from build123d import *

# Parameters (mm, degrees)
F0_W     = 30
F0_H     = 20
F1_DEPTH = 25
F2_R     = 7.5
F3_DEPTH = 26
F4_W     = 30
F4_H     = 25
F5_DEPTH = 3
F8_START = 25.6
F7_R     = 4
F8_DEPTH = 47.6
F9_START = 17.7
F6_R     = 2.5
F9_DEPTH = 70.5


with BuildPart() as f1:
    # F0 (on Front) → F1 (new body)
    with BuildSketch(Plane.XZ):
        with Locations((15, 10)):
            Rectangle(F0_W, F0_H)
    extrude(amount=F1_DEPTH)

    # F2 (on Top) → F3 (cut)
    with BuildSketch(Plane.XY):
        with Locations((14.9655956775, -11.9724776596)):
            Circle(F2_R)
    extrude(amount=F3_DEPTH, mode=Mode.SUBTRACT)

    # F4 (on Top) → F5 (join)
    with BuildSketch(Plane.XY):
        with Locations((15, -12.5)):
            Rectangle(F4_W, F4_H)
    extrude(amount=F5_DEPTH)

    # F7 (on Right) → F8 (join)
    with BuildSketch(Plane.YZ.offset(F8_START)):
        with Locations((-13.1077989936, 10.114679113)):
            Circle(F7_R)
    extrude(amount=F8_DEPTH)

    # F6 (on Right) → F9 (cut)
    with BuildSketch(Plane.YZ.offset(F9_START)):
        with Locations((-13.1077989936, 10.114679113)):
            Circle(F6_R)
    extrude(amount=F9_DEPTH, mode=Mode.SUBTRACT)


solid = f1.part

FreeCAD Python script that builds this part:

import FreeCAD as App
import Part
import Sketcher
Q = App.Units.Quantity


def add_polygon(sketch, points):
    """Adds a closed chain of lines whose ends are joined by coincident constraints."""
    first, n = sketch.GeometryCount, len(points)
    for a, b in zip(points, points[1:] + points[:1]):
        sketch.addGeometry(Part.LineSegment(App.Vector(*a, 0), App.Vector(*b, 0)), False)
    for i in range(n):
        sketch.addConstraint(Sketcher.Constraint("Coincident", first + i, 2, first + (i + 1) % n, 1))

doc = App.newDocument("Part")
params = doc.addObject("Spreadsheet::Sheet", "Params")
for row, (alias, value) in enumerate([
    ("sketch1_width", "30 mm"),
    ("sketch1_height", "20 mm"),
    ("pad1_length", "25 mm"),
    ("sketch2_diameter", "15 mm"),
    ("pocket1_length", "26 mm"),
    ("sketch3_width", "30 mm"),
    ("sketch3_height", "25 mm"),
    ("pad2_length", "3 mm"),
    ("sketch4_diameter", "8 mm"),
    ("pad3_length", "47.6 mm"),
    ("sketch5_diameter", "5 mm"),
    ("pocket2_length", "70.5 mm"),
], start=1):
    params.set(f"A{row}", alias)
    params.set(f"B{row}", "=" + value)
    params.setAlias(f"B{row}", alias)

body = doc.addObject("PartDesign::Body", "Body")

# Sketch on XZ plane
sketch1 = doc.addObject("Sketcher::SketchObject", "Sketch")
body.addObject(sketch1)
sketch1.AttachmentSupport = (doc.XZ_Plane, [""])
sketch1.MapMode = "FlatFace"
add_polygon(sketch1, [(0, 20), (0, 0), (30, 0), (30, 20)])  # lines 0-3
sketch1.addConstraint([
    Sketcher.Constraint("Vertical", 0),
    Sketcher.Constraint("Horizontal", 1),
    Sketcher.Constraint("Vertical", 2),
    Sketcher.Constraint("Horizontal", 3),
    Sketcher.Constraint("Coincident", 0, 2, -1, 1),
    Sketcher.Constraint("DistanceX", 1, 1, 1, 2, Q("30 mm")),
    Sketcher.Constraint("DistanceY", 0, 2, 0, 1, Q("20 mm")),
])
sketch1.setExpression("Constraints[9]", "Params.sketch1_width")
sketch1.setExpression("Constraints[10]", "Params.sketch1_height")
pad1 = doc.addObject("PartDesign::Pad", "Pad")
body.addObject(pad1)
pad1.Profile = sketch1
pad1.setExpression("Length", "Params.pad1_length")

# Sketch on XY plane
sketch2 = doc.addObject("Sketcher::SketchObject", "Sketch001")
body.addObject(sketch2)
sketch2.AttachmentSupport = (doc.XY_Plane, [""])
sketch2.MapMode = "FlatFace"
sketch2.addGeometry(Part.Circle(App.Vector(14.965596, -11.972478, 0), App.Vector(0, 0, 1), 7.5), False)
sketch2.addConstraint([
    Sketcher.Constraint("Diameter", 0, Q("15 mm")),
    Sketcher.Constraint("DistanceX", -1, 1, 0, 3, Q("14.965596 mm")),
    Sketcher.Constraint("DistanceY", 0, 3, -1, 1, Q("11.972478 mm")),
])
sketch2.setExpression("Constraints[0]", "Params.sketch2_diameter")
pocket1 = doc.addObject("PartDesign::Pocket", "Pocket")
body.addObject(pocket1)
pocket1.Profile = sketch2
pocket1.setExpression("Length", "Params.pocket1_length")
pocket1.Reversed = True

# Sketch on XY plane
sketch3 = doc.addObject("Sketcher::SketchObject", "Sketch002")
body.addObject(sketch3)
sketch3.AttachmentSupport = (doc.XY_Plane, [""])
sketch3.MapMode = "FlatFace"
add_polygon(sketch3, [(0, 0), (0, -25), (30, -25), (30, 0)])  # lines 0-3
sketch3.addConstraint([
    Sketcher.Constraint("Vertical", 0),
    Sketcher.Constraint("Horizontal", 1),
    Sketcher.Constraint("Vertical", 2),
    Sketcher.Constraint("Horizontal", 3),
    Sketcher.Constraint("Coincident", 3, 2, -1, 1),
    Sketcher.Constraint("DistanceX", 1, 1, 1, 2, Q("30 mm")),
    Sketcher.Constraint("DistanceY", 0, 2, 0, 1, Q("25 mm")),
])
sketch3.setExpression("Constraints[9]", "Params.sketch3_width")
sketch3.setExpression("Constraints[10]", "Params.sketch3_height")
pad2 = doc.addObject("PartDesign::Pad", "Pad001")
body.addObject(pad2)
pad2.Profile = sketch3
pad2.setExpression("Length", "Params.pad2_length")

# Sketch on YZ plane
sketch4 = doc.addObject("Sketcher::SketchObject", "Sketch003")
body.addObject(sketch4)
sketch4.AttachmentSupport = (doc.YZ_Plane, [""])
sketch4.MapMode = "FlatFace"
sketch4.AttachmentOffset = App.Placement(App.Vector(0, 0, 25.6), App.Rotation())
sketch4.addGeometry(Part.Circle(App.Vector(-13.107799, 10.114679, 0), App.Vector(0, 0, 1), 4), False)
sketch4.addConstraint([
    Sketcher.Constraint("Diameter", 0, Q("8 mm")),
    Sketcher.Constraint("DistanceX", 0, 3, -1, 1, Q("13.107799 mm")),
    Sketcher.Constraint("DistanceY", -1, 1, 0, 3, Q("10.114679 mm")),
])
sketch4.setExpression("Constraints[0]", "Params.sketch4_diameter")
pad3 = doc.addObject("PartDesign::Pad", "Pad002")
body.addObject(pad3)
pad3.Profile = sketch4
pad3.setExpression("Length", "Params.pad3_length")

# Sketch on YZ plane
sketch5 = doc.addObject("Sketcher::SketchObject", "Sketch004")
body.addObject(sketch5)
sketch5.AttachmentSupport = (doc.YZ_Plane, [""])
sketch5.MapMode = "FlatFace"
sketch5.AttachmentOffset = App.Placement(App.Vector(0, 0, 17.7), App.Rotation())
sketch5.addGeometry(Part.Circle(App.Vector(-13.107799, 10.114679, 0), App.Vector(0, 0, 1), 2.5), False)
sketch5.addConstraint([
    Sketcher.Constraint("Diameter", 0, Q("5 mm")),
    Sketcher.Constraint("DistanceX", 0, 3, -1, 1, Q("13.107799 mm")),
    Sketcher.Constraint("DistanceY", -1, 1, 0, 3, Q("10.114679 mm")),
])
sketch5.setExpression("Constraints[0]", "Params.sketch5_diameter")
pocket2 = doc.addObject("PartDesign::Pocket", "Pocket001")
body.addObject(pocket2)
pocket2.Profile = sketch5
pocket2.setExpression("Length", "Params.pocket2_length")
pocket2.Reversed = True

doc.recompute()
